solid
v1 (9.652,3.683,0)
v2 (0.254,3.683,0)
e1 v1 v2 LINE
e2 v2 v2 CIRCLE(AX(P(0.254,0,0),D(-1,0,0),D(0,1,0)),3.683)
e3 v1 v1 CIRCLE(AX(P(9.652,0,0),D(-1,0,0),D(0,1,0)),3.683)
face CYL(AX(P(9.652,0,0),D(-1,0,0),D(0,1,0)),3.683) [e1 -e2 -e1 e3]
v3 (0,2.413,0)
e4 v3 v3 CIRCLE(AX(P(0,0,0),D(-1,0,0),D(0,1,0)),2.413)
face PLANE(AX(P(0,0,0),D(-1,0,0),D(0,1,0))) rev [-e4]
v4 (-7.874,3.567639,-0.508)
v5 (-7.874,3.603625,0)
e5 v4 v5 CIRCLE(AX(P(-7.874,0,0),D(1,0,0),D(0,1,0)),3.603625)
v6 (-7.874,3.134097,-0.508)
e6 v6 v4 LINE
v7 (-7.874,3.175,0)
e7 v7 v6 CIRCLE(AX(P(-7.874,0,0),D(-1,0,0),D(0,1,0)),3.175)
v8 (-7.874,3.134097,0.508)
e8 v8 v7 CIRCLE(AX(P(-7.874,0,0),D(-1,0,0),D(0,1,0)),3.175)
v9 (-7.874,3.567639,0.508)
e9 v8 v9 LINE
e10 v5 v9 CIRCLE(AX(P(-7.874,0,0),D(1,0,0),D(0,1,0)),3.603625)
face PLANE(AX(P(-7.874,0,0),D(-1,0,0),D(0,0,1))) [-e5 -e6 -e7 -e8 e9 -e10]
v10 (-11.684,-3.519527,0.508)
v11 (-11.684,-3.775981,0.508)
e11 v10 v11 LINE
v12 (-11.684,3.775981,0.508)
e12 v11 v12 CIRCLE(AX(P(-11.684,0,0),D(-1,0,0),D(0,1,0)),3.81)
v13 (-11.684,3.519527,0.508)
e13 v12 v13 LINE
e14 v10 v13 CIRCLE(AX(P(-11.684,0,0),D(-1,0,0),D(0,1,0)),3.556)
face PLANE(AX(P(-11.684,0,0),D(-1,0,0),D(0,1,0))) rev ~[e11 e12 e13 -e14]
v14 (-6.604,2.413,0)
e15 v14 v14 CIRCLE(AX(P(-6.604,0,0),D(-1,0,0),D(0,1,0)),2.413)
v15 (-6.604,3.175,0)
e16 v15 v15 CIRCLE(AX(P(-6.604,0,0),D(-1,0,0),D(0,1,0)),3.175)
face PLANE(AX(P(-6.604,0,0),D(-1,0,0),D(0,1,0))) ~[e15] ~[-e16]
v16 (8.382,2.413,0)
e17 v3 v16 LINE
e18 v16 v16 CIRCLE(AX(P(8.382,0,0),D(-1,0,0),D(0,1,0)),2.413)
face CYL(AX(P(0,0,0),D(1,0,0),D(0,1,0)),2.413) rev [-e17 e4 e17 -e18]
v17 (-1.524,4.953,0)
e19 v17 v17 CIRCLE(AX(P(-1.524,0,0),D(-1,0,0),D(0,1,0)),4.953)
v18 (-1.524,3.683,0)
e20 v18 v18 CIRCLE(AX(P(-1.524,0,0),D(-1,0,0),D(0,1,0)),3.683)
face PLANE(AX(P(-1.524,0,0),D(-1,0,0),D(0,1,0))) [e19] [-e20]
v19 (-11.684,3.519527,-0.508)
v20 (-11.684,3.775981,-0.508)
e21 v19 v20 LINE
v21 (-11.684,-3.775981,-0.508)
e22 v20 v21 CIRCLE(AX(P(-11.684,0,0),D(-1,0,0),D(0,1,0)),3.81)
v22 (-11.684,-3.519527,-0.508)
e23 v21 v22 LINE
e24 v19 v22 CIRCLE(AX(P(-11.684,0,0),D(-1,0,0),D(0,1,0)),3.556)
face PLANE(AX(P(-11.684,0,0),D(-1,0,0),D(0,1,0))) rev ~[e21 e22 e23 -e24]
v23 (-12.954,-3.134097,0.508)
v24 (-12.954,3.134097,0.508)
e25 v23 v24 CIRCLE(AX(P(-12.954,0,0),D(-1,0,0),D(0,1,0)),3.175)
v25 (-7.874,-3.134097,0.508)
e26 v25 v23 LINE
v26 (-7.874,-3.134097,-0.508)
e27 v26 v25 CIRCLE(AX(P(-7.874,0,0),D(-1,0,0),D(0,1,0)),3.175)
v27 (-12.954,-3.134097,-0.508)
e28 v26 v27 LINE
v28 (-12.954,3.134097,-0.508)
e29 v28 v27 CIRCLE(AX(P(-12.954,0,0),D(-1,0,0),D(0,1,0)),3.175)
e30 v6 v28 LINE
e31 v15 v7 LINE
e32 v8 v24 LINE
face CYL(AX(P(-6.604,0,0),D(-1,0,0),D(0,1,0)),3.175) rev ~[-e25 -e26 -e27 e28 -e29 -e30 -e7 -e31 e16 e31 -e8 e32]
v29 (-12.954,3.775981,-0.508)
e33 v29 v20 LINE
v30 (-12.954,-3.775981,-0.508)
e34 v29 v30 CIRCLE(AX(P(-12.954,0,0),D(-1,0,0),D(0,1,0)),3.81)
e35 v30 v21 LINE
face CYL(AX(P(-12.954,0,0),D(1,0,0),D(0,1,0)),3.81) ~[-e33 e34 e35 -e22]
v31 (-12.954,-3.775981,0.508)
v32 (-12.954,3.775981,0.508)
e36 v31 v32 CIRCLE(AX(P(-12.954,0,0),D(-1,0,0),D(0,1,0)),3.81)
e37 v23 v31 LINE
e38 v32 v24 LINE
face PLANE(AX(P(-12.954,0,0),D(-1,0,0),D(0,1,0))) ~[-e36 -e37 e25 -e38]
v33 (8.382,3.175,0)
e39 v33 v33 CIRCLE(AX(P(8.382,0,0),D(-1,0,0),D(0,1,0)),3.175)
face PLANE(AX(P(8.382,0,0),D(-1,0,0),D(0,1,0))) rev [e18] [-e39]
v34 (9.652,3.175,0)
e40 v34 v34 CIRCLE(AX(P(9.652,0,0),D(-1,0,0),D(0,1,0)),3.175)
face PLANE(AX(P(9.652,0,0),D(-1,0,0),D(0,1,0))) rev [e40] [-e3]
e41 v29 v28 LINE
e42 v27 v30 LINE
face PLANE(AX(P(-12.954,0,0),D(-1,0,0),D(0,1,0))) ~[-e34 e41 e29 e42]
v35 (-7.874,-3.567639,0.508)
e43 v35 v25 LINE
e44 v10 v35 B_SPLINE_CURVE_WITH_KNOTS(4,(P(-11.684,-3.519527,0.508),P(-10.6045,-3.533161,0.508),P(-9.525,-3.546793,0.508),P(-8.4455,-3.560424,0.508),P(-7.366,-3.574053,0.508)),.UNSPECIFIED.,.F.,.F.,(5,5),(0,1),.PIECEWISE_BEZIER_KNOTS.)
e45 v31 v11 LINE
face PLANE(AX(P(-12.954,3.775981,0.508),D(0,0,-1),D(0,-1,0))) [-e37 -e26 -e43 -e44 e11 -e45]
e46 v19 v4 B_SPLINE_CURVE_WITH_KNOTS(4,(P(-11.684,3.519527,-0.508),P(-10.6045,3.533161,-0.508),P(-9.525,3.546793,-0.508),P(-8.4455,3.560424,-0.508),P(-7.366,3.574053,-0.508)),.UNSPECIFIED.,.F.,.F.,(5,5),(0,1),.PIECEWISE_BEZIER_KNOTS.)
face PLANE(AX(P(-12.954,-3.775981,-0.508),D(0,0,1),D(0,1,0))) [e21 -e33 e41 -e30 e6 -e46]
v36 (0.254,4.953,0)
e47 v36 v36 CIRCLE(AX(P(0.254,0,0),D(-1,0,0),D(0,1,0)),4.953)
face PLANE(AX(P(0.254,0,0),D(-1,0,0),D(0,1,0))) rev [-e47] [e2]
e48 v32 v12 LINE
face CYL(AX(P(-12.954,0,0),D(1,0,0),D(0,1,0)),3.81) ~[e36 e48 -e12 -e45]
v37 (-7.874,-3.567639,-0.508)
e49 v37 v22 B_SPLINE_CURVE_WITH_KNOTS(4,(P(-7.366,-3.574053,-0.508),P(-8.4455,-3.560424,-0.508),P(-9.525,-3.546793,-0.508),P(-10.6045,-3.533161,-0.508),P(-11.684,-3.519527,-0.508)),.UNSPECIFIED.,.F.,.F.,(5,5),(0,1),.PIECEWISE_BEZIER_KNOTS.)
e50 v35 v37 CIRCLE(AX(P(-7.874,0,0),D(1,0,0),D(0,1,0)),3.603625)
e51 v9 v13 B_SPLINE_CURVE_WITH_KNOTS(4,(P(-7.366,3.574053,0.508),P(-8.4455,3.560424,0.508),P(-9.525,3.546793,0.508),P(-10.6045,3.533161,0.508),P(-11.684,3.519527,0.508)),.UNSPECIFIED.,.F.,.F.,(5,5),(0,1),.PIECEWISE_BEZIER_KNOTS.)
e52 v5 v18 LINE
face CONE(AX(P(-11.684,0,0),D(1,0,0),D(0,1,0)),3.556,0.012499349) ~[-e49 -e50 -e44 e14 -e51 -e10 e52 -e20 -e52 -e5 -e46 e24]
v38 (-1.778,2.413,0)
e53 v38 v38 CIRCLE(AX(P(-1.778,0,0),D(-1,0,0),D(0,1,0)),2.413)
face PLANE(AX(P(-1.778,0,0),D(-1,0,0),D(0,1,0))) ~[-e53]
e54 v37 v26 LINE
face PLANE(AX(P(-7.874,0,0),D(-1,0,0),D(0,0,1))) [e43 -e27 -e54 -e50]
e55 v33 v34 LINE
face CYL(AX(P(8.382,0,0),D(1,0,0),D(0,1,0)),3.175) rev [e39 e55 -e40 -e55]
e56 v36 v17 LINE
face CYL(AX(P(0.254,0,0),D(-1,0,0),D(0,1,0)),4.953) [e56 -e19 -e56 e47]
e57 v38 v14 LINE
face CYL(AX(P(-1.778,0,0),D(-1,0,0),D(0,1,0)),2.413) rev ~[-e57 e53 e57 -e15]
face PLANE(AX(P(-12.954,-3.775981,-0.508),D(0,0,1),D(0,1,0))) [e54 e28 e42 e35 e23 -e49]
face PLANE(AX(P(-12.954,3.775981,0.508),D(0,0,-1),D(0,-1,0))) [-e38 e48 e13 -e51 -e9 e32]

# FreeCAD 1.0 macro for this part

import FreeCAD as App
import Part
import Sketcher

V = App.Vector
Q = App.Units.Quantity

doc = App.newDocument("Part")
body = doc.addObject("PartDesign::Body", "Body")

# Sketch on XY plane
sketch1 = doc.addObject("Sketcher::SketchObject", "Sketch")
body.addObject(sketch1)
sketch1.AttachmentSupport = (doc.XY_Plane, [""])
sketch1.MapMode = "FlatFace"
sketch1.addGeometry([
    Part.LineSegment(V(-1.778, 0, 0), V(0, 0, 0)),  # 0
    Part.LineSegment(V(0, 0, 0), V(0, 2.413, 0)),  # 1
    Part.LineSegment(V(0, 2.413, 0), V(8.382, 2.413, 0)),  # 2
    Part.LineSegment(V(8.382, 2.413, 0), V(8.382, 3.175, 0)),  # 3
    Part.LineSegment(V(8.382, 3.175, 0), V(9.652, 3.175, 0)),  # 4
    Part.LineSegment(V(9.652, 3.175, 0), V(9.652, 3.683, 0)),  # 5
    Part.LineSegment(V(9.652, 3.683, 0), V(0.254, 3.683, 0)),  # 6
    Part.LineSegment(V(0.254, 3.683, 0), V(0.254, 4.953, 0)),  # 7
    Part.LineSegment(V(0.254, 4.953, 0), V(-1.524, 4.953, 0)),  # 8
    Part.LineSegment(V(-1.524, 4.953, 0), V(-1.524, 3.683, 0)),  # 9
    Part.LineSegment(V(-1.524, 3.683, 0), V(-11.684, 3.556, 0)),  # 10
    Part.LineSegment(V(-11.684, 3.556, 0), V(-11.684, 3.81, 0)),  # 11
    Part.LineSegment(V(-11.684, 3.81, 0), V(-12.954, 3.81, 0)),  # 12
    Part.LineSegment(V(-12.954, 3.81, 0), V(-12.954, 3.175, 0)),  # 13
    Part.LineSegment(V(-12.954, 3.175, 0), V(-6.604, 3.175, 0)),  # 14
    Part.LineSegment(V(-6.604, 3.175, 0), V(-6.604, 2.413, 0)),  # 15
    Part.LineSegment(V(-6.604, 2.413, 0), V(-1.778, 2.413, 0)),  # 16
    Part.LineSegment(V(-1.778, 2.413, 0), V(-1.778, 0, 0)),  # 17
], False)
sketch1.addConstraint([
    Sketcher.Constraint("Coincident", 0, 2, 1, 1),
    Sketcher.Constraint("Coincident", 1, 2, 2, 1),
    Sketcher.Constraint("Coincident", 2, 2, 3, 1),
    Sketcher.Constraint("Coincident", 3, 2, 4, 1),
    Sketcher.Constraint("Coincident", 4, 2, 5, 1),
    Sketcher.Constraint("Coincident", 5, 2, 6, 1),
    Sketcher.Constraint("Coincident", 6, 2, 7, 1),
    Sketcher.Constraint("Coincident", 7, 2, 8, 1),
    Sketcher.Constraint("Coincident", 8, 2, 9, 1),
    Sketcher.Constraint("Coincident", 9, 2, 10, 1),
    Sketcher.Constraint("Coincident", 10, 2, 11, 1),
    Sketcher.Constraint("Coincident", 11, 2, 12, 1),
    Sketcher.Constraint("Coincident", 12, 2, 13, 1),
    Sketcher.Constraint("Coincident", 13, 2, 14, 1),
    Sketcher.Constraint("Coincident", 14, 2, 15, 1),
    Sketcher.Constraint("Coincident", 15, 2, 16, 1),
    Sketcher.Constraint("Coincident", 16, 2, 17, 1),
    Sketcher.Constraint("Coincident", 17, 2, 0, 1),
    Sketcher.Constraint("Horizontal", 0),
    Sketcher.Constraint("Vertical", 1),
    Sketcher.Constraint("Horizontal", 2),
    Sketcher.Constraint("Vertical", 3),
    Sketcher.Constraint("Horizontal", 4),
    Sketcher.Constraint("Vertical", 5),
    Sketcher.Constraint("Horizontal", 6),
    Sketcher.Constraint("Vertical", 7),
    Sketcher.Constraint("Horizontal", 8),
    Sketcher.Constraint("Vertical", 9),
    Sketcher.Constraint("Vertical", 11),
    Sketcher.Constraint("Horizontal", 12),
    Sketcher.Constraint("Vertical", 13),
    Sketcher.Constraint("Horizontal", 14),
    Sketcher.Constraint("Vertical", 15),
    Sketcher.Constraint("Horizontal", 16),
    Sketcher.Constraint("Vertical", 17),
    Sketcher.Constraint("Coincident", 0, 2, -1, 1),
    Sketcher.Constraint("Horizontal", 6, 2, 9, 2),
    Sketcher.Constraint("Horizontal", 4, 2, 13, 2),
    Sketcher.Constraint("Horizontal", 2, 2, 15, 2),
    Sketcher.Constraint("Equal", 0, 8),
    Sketcher.Constraint("Equal", 4, 12),
    Sketcher.Constraint("Equal", 12, 7),
    Sketcher.Constraint("DistanceX", 0, 1, 0, 2, Q("0.07 in")),
    Sketcher.Constraint("DistanceX", 2, 1, 2, 2, Q("0.33 in")),
    Sketcher.Constraint("DistanceX", 4, 1, 4, 2, Q("0.05 in")),
    Sketcher.Constraint("DistanceX", 6, 2, 6, 1, Q("0.37 in")),
    Sketcher.Constraint("DistanceX", 14, 1, 14, 2, Q("0.25 in")),
    Sketcher.Constraint("DistanceX", 16, 1, 16, 2, Q("0.19 in")),
    Sketcher.Constraint("DistanceY", 3, 1, 3, 2, Q("0.03 in")),
    Sketcher.Constraint("DistanceY", 5, 1, 5, 2, Q("0.02 in")),
    Sketcher.Constraint("DistanceY", 11, 1, 11, 2, Q("0.01 in")),
    Sketcher.Constraint("DistanceY", 1, 1, 1, 2, Q("0.095 in")),
    Sketcher.Constraint("DistanceY", 13, 2, 13, 1, Q("0.025 in")),
])
revolution = doc.addObject("PartDesign::Revolution", "Revolution")
body.addObject(revolution)
revolution.Profile = sketch1
revolution.ReferenceAxis = (sketch1, ["H_Axis"])
revolution.Angle = 360

# Sketch on YZ plane
sketch2 = doc.addObject("Sketcher::SketchObject", "Sketch001")
body.addObject(sketch2)
sketch2.AttachmentSupport = (doc.YZ_Plane, [""])
sketch2.MapMode = "FlatFace"
sketch2.AttachmentOffset = App.Placement(V(0, 0, -0.51 * 25.4), App.Rotation())
sketch2.addGeometry([
    Part.LineSegment(V(4.1374, 0.508, 0), V(4.1374, -0.508, 0)),
    Part.LineSegment(V(4.1374, -0.508, 0), V(-4.4161, -0.508, 0)),
    Part.LineSegment(V(-4.4161, -0.508, 0), V(-4.4161, 0.508, 0)),
    Part.LineSegment(V(-4.4161, 0.508, 0), V(4.1374, 0.508, 0)),
], False)
sketch2.addConstraint([
    Sketcher.Constraint("Coincident", 0, 2, 1, 1),
    Sketcher.Constraint("Coincident", 1, 2, 2, 1),
    Sketcher.Constraint("Coincident", 2, 2, 3, 1),
    Sketcher.Constraint("Coincident", 3, 2, 0, 1),
    Sketcher.Constraint("Vertical", 0),
    Sketcher.Constraint("Horizontal", 1),
    Sketcher.Constraint("Vertical", 2),
    Sketcher.Constraint("Horizontal", 3),
    Sketcher.Constraint("DistanceY", 0, 2, 0, 1, Q("0.04 in")),
    Sketcher.Constraint("DistanceY", 0, 2, -1, 1, Q("0.02 in")),
    Sketcher.Constraint("DistanceX", 1, 2, 1, 1, Q("8.5535 mm")),
    Sketcher.Constraint("DistanceX", -1, 1, 0, 2, Q("0.1629 in")),
])
pocket1 = doc.addObject("PartDesign::Pocket", "Pocket")
body.addObject(pocket1)
pocket1.Profile = sketch2
pocket1.Length = Q("0.2 in")
pocket1.Reversed = True

doc.recompute()
